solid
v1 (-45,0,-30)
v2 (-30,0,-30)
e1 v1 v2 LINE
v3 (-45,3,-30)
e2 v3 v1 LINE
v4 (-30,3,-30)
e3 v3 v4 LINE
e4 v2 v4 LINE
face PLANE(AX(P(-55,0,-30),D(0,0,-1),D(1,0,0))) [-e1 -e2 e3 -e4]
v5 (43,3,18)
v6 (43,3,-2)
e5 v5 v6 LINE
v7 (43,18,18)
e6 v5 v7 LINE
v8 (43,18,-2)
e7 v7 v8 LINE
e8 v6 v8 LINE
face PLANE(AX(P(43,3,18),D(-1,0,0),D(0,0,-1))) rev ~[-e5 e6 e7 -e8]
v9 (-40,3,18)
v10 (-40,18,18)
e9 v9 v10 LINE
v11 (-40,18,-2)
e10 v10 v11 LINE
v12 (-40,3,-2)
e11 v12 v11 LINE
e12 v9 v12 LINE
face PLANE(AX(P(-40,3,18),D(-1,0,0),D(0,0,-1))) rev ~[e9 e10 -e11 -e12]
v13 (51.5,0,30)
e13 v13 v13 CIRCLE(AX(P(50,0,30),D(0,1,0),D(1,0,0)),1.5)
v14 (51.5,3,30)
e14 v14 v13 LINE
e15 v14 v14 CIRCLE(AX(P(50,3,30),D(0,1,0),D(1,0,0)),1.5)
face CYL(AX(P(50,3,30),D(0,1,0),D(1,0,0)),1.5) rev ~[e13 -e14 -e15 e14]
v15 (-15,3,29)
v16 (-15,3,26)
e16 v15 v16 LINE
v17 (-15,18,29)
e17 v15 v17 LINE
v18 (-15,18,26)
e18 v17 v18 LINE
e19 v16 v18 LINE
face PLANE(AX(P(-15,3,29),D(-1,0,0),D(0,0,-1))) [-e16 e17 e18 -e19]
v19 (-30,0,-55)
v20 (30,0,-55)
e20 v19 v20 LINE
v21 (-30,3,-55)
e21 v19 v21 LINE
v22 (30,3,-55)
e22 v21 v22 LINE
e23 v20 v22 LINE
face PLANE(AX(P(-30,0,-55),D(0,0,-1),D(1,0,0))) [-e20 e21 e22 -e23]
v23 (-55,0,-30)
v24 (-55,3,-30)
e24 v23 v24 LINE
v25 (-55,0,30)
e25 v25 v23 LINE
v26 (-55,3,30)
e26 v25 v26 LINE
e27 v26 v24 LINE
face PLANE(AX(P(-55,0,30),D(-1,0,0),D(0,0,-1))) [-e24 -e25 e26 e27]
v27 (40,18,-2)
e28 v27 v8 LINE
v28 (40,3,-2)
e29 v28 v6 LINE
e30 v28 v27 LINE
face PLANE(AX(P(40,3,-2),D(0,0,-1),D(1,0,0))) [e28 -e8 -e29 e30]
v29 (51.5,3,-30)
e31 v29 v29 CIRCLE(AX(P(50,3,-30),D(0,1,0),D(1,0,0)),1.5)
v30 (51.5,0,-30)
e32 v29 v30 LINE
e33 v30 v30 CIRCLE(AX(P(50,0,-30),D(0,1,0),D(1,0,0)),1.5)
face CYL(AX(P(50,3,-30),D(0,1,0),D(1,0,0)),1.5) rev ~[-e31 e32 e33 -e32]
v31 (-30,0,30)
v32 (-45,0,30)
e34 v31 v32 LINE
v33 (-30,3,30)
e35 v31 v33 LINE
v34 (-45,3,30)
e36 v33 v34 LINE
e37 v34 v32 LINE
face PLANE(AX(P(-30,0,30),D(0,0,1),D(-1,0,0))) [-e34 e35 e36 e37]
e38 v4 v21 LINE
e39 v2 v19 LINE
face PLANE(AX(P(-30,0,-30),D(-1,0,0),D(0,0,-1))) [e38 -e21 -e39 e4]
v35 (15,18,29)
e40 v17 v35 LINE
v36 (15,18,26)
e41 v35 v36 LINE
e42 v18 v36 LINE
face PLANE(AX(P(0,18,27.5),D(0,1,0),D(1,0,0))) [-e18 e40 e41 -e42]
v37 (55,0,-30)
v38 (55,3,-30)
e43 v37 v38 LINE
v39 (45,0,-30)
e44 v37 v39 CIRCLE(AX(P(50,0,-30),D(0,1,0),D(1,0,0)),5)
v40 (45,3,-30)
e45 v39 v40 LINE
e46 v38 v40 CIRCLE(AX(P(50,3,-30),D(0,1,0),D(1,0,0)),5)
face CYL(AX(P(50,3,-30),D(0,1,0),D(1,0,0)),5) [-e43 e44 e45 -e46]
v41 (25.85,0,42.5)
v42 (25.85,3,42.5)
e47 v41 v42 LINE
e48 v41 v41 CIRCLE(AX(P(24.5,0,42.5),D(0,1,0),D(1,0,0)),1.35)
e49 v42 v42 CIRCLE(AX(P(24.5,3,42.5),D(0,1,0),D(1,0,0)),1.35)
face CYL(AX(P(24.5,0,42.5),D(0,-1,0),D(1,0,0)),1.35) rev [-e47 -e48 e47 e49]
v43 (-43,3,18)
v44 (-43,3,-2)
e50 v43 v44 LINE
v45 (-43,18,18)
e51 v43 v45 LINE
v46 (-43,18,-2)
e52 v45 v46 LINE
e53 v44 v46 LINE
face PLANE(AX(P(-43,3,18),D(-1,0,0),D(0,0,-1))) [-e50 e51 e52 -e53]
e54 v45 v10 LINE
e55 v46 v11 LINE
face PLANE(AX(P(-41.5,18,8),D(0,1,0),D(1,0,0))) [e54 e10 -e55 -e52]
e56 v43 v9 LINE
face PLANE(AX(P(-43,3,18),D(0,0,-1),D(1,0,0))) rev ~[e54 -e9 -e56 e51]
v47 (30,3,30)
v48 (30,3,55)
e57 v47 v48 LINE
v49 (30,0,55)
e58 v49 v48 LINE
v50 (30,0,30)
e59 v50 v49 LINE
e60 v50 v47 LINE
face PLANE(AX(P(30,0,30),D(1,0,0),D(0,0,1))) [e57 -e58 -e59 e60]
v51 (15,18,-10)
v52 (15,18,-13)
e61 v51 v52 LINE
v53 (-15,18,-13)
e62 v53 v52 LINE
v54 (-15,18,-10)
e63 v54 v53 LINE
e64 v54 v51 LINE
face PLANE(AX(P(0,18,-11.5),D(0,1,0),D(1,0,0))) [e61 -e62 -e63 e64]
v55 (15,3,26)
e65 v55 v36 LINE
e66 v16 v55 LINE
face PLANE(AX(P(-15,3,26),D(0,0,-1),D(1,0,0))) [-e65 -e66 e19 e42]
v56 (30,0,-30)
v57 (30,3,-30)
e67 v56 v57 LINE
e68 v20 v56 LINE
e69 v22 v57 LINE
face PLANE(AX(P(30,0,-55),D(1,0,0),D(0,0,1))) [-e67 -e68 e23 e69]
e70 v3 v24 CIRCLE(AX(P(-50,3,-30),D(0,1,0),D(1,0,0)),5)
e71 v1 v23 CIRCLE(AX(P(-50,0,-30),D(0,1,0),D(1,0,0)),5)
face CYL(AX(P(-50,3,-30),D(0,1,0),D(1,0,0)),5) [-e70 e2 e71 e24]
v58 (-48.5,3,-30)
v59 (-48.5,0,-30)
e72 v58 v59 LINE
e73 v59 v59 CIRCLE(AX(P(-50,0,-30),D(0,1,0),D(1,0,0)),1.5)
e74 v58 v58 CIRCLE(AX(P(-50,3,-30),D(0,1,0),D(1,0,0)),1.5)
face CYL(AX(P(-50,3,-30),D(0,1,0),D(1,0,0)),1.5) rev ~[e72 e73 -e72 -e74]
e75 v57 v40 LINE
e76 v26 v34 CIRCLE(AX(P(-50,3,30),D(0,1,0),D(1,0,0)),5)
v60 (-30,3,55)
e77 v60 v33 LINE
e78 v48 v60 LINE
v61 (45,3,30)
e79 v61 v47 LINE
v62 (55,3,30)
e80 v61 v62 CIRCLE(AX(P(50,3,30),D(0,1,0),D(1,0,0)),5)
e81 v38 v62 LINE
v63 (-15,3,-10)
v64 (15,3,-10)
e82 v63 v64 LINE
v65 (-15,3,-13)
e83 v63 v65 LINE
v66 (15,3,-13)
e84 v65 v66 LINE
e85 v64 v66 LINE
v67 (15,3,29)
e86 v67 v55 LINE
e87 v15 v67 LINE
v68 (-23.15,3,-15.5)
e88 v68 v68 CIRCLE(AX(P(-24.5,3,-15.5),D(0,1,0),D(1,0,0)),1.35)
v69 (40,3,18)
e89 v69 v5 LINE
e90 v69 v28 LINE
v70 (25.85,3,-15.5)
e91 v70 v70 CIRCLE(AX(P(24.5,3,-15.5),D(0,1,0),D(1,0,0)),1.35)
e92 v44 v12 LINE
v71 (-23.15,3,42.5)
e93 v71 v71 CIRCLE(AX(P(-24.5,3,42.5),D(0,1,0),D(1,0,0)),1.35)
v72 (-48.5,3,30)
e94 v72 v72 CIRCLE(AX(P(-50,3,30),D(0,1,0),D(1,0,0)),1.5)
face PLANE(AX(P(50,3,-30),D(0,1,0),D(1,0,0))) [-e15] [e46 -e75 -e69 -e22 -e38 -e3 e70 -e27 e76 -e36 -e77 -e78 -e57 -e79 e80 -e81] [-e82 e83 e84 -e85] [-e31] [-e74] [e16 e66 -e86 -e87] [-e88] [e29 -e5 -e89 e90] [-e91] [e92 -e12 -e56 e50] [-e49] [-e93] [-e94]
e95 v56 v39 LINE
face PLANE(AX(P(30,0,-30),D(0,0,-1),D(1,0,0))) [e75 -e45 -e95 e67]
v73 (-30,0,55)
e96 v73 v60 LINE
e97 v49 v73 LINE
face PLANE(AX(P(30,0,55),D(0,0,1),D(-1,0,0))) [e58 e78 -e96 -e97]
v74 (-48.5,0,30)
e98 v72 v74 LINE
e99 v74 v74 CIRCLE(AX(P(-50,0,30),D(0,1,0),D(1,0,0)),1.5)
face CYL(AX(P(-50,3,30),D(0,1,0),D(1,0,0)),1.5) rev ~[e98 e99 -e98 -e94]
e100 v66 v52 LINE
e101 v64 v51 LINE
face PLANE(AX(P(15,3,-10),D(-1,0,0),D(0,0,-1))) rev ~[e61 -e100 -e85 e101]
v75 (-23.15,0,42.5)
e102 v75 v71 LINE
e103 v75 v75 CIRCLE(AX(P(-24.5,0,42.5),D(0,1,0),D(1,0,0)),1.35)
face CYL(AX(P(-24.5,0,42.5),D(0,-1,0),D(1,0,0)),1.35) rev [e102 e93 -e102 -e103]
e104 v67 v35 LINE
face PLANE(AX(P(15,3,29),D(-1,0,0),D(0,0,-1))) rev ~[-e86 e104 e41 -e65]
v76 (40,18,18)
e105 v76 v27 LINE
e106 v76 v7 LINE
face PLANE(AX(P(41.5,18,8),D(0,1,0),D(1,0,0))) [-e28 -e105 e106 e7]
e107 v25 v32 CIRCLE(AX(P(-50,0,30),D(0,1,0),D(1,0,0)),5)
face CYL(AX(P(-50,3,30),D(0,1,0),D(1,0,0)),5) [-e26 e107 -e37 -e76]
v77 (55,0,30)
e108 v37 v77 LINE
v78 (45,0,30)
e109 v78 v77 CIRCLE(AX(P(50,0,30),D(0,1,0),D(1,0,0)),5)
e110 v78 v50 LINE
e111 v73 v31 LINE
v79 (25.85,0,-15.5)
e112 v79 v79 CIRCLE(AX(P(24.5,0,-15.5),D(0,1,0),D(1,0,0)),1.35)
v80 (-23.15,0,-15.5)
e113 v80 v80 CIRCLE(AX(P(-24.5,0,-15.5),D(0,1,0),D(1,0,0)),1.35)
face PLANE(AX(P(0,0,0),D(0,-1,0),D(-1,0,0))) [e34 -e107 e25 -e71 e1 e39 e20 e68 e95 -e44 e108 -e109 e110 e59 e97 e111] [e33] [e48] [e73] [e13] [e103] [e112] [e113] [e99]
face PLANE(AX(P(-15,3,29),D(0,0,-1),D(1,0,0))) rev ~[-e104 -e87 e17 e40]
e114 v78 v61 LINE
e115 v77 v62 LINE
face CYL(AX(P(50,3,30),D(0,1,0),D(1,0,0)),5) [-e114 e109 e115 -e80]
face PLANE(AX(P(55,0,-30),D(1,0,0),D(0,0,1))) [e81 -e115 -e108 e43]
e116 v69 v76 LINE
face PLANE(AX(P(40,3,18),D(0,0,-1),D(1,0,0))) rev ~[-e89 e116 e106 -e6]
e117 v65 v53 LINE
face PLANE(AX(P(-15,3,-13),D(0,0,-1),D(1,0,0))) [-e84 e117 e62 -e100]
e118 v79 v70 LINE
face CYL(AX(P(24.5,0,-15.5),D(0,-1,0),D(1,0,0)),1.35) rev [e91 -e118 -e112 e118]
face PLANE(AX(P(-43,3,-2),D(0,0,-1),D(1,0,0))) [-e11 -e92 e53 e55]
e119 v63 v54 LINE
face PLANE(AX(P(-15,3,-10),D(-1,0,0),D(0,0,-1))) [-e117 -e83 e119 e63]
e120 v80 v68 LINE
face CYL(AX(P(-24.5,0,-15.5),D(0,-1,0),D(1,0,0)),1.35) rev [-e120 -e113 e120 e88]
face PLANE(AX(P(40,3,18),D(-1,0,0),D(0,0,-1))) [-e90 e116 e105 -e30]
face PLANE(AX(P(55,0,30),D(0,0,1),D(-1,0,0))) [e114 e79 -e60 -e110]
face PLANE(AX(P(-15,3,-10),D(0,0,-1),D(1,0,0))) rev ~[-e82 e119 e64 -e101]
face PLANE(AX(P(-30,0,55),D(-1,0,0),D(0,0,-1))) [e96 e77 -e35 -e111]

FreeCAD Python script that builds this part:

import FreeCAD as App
import Part
import Sketcher

V = App.Vector


def add_polygon(sketch, points):
    """Adds a closed chain of lines whose ends are joined by coincident constraints."""
    first, n = sketch.GeometryCount, len(points)
    for a, b in zip(points, points[1:] + points[:1]):
        sketch.addGeometry(Part.LineSegment(App.Vector(*a, 0), App.Vector(*b, 0)), False)
    for i in range(n):
        sketch.addConstraint(Sketcher.Constraint("Coincident", first + i, 2, first + (i + 1) % n, 1))

doc = App.newDocument("Part")
body = doc.addObject("PartDesign::Body", "Body")

# Sketch on XZ plane
sketch1 = body.newObject("Sketcher::SketchObject", "Sketch")
sketch1.AttachmentSupport = (doc.getObject("XZ_Plane"), [""])
sketch1.MapMode = "FlatFace"
add_polygon(sketch1, [(-30, 55), (30, 55), (30, 30), (55, 30), (55, -30), (30, -30), (30, -55), (-30, -55), (-30, -30), (-55, -30), (-55, 30), (-30, 30)])  # lines 0-11
sketch1.addGeometry(Part.Circle(V(24.5, 42.5, 0), V(0, 0, 1), 1.35), False)  # 12
sketch1.addGeometry(Part.Circle(V(-24.5, 42.5, 0), V(0, 0, 1), 1.35), False)  # 13
sketch1.addGeometry(Part.Circle(V(24.5, -15.5, 0), V(0, 0, 1), 1.35), False)  # 14
sketch1.addGeometry(Part.Circle(V(-24.5, -15.5, 0), V(0, 0, 1), 1.35), False)  # 15
sketch1.addConstraint(Sketcher.Constraint("Horizontal", 0))
sketch1.addConstraint(Sketcher.Constraint("Vertical", 1))
sketch1.addConstraint(Sketcher.Constraint("Horizontal", 2))
sketch1.addConstraint(Sketcher.Constraint("Vertical", 3))
sketch1.addConstraint(Sketcher.Constraint("Horizontal", 4))
sketch1.addConstraint(Sketcher.Constraint("Vertical", 5))
sketch1.addConstraint(Sketcher.Constraint("Horizontal", 6))
sketch1.addConstraint(Sketcher.Constraint("Vertical", 7))
sketch1.addConstraint(Sketcher.Constraint("Horizontal", 8))
sketch1.addConstraint(Sketcher.Constraint("Vertical", 9))
sketch1.addConstraint(Sketcher.Constraint("Horizontal", 10))
sketch1.addConstraint(Sketcher.Constraint("Vertical", 11))
sketch1.addConstraint(Sketcher.Constraint("Equal", 12, 13))
sketch1.addConstraint(Sketcher.Constraint("Equal", 13, 14))
sketch1.addConstraint(Sketcher.Constraint("Equal", 14, 15))
sketch1.addConstraint(Sketcher.Constraint("Symmetric", 0, 2, 6, 2, -1, 1))
sketch1.addConstraint(Sketcher.Constraint("Symmetric", 2, 2, 8, 2, -1, 1))
sketch1.addConstraint(Sketcher.Constraint("Symmetric", 4, 2, 10, 2, -1, 1))
sketch1.addConstraint(Sketcher.Constraint("Symmetric", 12, 3, 13, 3, -2))
sketch1.addConstraint(Sketcher.Constraint("Symmetric", 14, 3, 15, 3, -2))
sketch1.addConstraint(Sketcher.Constraint("Symmetric", 4, 2, 7, 2, -2))
sketch1.addConstraint(Sketcher.Constraint("Vertical", 12, 3, 14, 3))
sketch1.addConstraint(Sketcher.Constraint("Equal", 10, 1))
sketch1.addConstraint(Sketcher.Constraint("Equal", 6, 3))
sketch1.addConstraint(Sketcher.Constraint("Diameter", 12, 2.7))
sketch1.addConstraint(Sketcher.Constraint("DistanceX", 0, 1, 0, 2, 60.0))
sketch1.addConstraint(Sketcher.Constraint("DistanceX", 2, 1, 2, 2, 25.0))
sketch1.addConstraint(Sketcher.Constraint("DistanceX", 13, 3, 12, 3, 49.0))
sketch1.addConstraint(Sketcher.Constraint("DistanceY", 14, 3, 12, 3, 58.0))
sketch1.addConstraint(Sketcher.Constraint("DistanceY", -1, 1, 12, 3, 42.5))
pad1 = body.newObject("PartDesign::Pad", "Pad")
pad1.Profile = sketch1
pad1.Length = 3
pad1.Reversed = True

# Sketch on XZ plane
sketch2 = body.newObject("Sketcher::SketchObject", "Sketch001")
sketch2.AttachmentSupport = (doc.getObject("XZ_Plane"), [""])
sketch2.MapMode = "FlatFace"
sketch2.AttachmentOffset = App.Placement(V(0, 0, -3), App.Rotation())
sketch2.addGeometry(Part.Circle(V(50, -30, 0), V(0, 0, 1), 5), False)
sketch2.addGeometry(Part.Circle(V(50, 30, 0), V(0, 0, 1), 5), False)
sketch2.addGeometry(Part.Circle(V(-50, 30, 0), V(0, 0, 1), 5), False)
sketch2.addGeometry(Part.Circle(V(-50, -30, 0), V(0, 0, 1), 5), False)
sketch2.addConstraint(Sketcher.Constraint("Equal", 0, 1))
sketch2.addConstraint(Sketcher.Constraint("Equal", 1, 2))
sketch2.addConstraint(Sketcher.Constraint("Equal", 2, 3))
sketch2.addConstraint(Sketcher.Constraint("Symmetric", 0, 3, 2, 3, -1, 1))
sketch2.addConstraint(Sketcher.Constraint("Symmetric", 1, 3, 3, 3, -1, 1))
sketch2.addConstraint(Sketcher.Constraint("Symmetric", 1, 3, 2, 3, -2))
sketch2.addConstraint(Sketcher.Constraint("Diameter", 0, 10.0))
sketch2.addConstraint(Sketcher.Constraint("DistanceX", -1, 1, 0, 3, 50.0))
sketch2.addConstraint(Sketcher.Constraint("DistanceY", 0, 3, -1, 1, 30.0))
pad2 = body.newObject("PartDesign::Pad", "Pad001")
pad2.Profile = sketch2
pad2.Length = 3

# Sketch on XZ plane
sketch3 = body.newObject("Sketcher::SketchObject", "Sketch002")
sketch3.AttachmentSupport = (doc.getObject("XZ_Plane"), [""])
sketch3.MapMode = "FlatFace"
sketch3.AttachmentOffset = App.Placement(V(0, 0, -3), App.Rotation())
sketch3.addGeometry(Part.Circle(V(50, -30, 0), V(0, 0, 1), 1.5), False)
sketch3.addGeometry(Part.Circle(V(50, 30, 0), V(0, 0, 1), 1.5), False)
sketch3.addGeometry(Part.Circle(V(-50, 30, 0), V(0, 0, 1), 1.5), False)
sketch3.addGeometry(Part.Circle(V(-50, -30, 0), V(0, 0, 1), 1.5), False)
sketch3.addConstraint(Sketcher.Constraint("Equal", 0, 1))
sketch3.addConstraint(Sketcher.Constraint("Equal", 1, 2))
sketch3.addConstraint(Sketcher.Constraint("Equal", 2, 3))
sketch3.addConstraint(Sketcher.Constraint("Symmetric", 0, 3, 2, 3, -1, 1))
sketch3.addConstraint(Sketcher.Constraint("Symmetric", 1, 3, 3, 3, -1, 1))
sketch3.addConstraint(Sketcher.Constraint("Symmetric", 1, 3, 2, 3, -2))
sketch3.addConstraint(Sketcher.Constraint("Diameter", 0, 3.0))
sketch3.addConstraint(Sketcher.Constraint("DistanceX", -1, 1, 0, 3, 50.0))
sketch3.addConstraint(Sketcher.Constraint("DistanceY", 0, 3, -1, 1, 30.0))
pocket1 = body.newObject("PartDesign::Pocket", "Pocket")
pocket1.Profile = sketch3
pocket1.Type = "ThroughAll"
pocket1.Reversed = True

# Sketch on XZ plane
sketch4 = body.newObject("Sketcher::SketchObject", "Sketch003")
sketch4.AttachmentSupport = (doc.getObject("XZ_Plane"), [""])
sketch4.MapMode = "FlatFace"
sketch4.AttachmentOffset = App.Placement(V(0, 0, -3), App.Rotation())
add_polygon(sketch4, [(-43, -2), (-43, 18), (-40, 18), (-40, -2)])  # lines 0-3
add_polygon(sketch4, [(40, -2), (40, 18), (43, 18), (43, -2)])  # lines 4-7
add_polygon(sketch4, [(-15, -13), (-15, -10), (15, -10), (15, -13)])  # lines 8-11
add_polygon(sketch4, [(-15, 26), (-15, 29), (15, 29), (15, 26)])  # lines 12-15
sketch4.addConstraint(Sketcher.Constraint("Vertical", 0))
sketch4.addConstraint(Sketcher.Constraint("Horizontal", 1))
sketch4.addConstraint(Sketcher.Constraint("Vertical", 2))
sketch4.addConstraint(Sketcher.Constraint("Horizontal", 3))
sketch4.addConstraint(Sketcher.Constraint("Vertical", 4))
sketch4.addConstraint(Sketcher.Constraint("Horizontal", 5))
sketch4.addConstraint(Sketcher.Constraint("Vertical", 6))
sketch4.addConstraint(Sketcher.Constraint("Horizontal", 7))
sketch4.addConstraint(Sketcher.Constraint("Vertical", 8))
sketch4.addConstraint(Sketcher.Constraint("Horizontal", 9))
sketch4.addConstraint(Sketcher.Constraint("Vertical", 10))
sketch4.addConstraint(Sketcher.Constraint("Horizontal", 11))
sketch4.addConstraint(Sketcher.Constraint("Vertical", 12))
sketch4.addConstraint(Sketcher.Constraint("Horizontal", 13))
sketch4.addConstraint(Sketcher.Constraint("Vertical", 14))
sketch4.addConstraint(Sketcher.Constraint("Horizontal", 15))
sketch4.addConstraint(Sketcher.Constraint("Symmetric", 1, 2, 4, 2, -2))
sketch4.addConstraint(Sketcher.Constraint("Symmetric", 3, 2, 6, 2, -2))
sketch4.addConstraint(Sketcher.Constraint("Vertical", 11, 2, 12, 2))
sketch4.addConstraint(Sketcher.Constraint("Vertical", 10, 2, 13, 2))
sketch4.addConstraint(Sketcher.Constraint("Equal", 7, 8))
sketch4.addConstraint(Sketcher.Constraint("Equal", 10, 12))
sketch4.addConstraint(Sketcher.Constraint("DistanceX", 1, 1, 1, 2, 3.0))
sketch4.addConstraint(Sketcher.Constraint("DistanceX", 9, 1, 9, 2, 30.0))
sketch4.addConstraint(Sketcher.Constraint("DistanceY", 0, 1, 0, 2, 20.0))
sketch4.addConstraint(Sketcher.Constraint("DistanceX", 0, 2, -1, 1, 43.0))
sketch4.addConstraint(Sketcher.Constraint("DistanceY", -1, 1, 0, 2, 18.0))
sketch4.addConstraint(Sketcher.Constraint("DistanceX", 8, 2, -1, 1, 15.0))
sketch4.addConstraint(Sketcher.Constraint("DistanceY", 8, 2, -1, 1, 10.0))
sketch4.addConstraint(Sketcher.Constraint("DistanceY", -1, 1, 12, 2, 29.0))
pad3 = body.newObject("PartDesign::Pad", "Pad002")
pad3.Profile = sketch4
pad3.Length = 15
pad3.Reversed = True

doc.recompute()
